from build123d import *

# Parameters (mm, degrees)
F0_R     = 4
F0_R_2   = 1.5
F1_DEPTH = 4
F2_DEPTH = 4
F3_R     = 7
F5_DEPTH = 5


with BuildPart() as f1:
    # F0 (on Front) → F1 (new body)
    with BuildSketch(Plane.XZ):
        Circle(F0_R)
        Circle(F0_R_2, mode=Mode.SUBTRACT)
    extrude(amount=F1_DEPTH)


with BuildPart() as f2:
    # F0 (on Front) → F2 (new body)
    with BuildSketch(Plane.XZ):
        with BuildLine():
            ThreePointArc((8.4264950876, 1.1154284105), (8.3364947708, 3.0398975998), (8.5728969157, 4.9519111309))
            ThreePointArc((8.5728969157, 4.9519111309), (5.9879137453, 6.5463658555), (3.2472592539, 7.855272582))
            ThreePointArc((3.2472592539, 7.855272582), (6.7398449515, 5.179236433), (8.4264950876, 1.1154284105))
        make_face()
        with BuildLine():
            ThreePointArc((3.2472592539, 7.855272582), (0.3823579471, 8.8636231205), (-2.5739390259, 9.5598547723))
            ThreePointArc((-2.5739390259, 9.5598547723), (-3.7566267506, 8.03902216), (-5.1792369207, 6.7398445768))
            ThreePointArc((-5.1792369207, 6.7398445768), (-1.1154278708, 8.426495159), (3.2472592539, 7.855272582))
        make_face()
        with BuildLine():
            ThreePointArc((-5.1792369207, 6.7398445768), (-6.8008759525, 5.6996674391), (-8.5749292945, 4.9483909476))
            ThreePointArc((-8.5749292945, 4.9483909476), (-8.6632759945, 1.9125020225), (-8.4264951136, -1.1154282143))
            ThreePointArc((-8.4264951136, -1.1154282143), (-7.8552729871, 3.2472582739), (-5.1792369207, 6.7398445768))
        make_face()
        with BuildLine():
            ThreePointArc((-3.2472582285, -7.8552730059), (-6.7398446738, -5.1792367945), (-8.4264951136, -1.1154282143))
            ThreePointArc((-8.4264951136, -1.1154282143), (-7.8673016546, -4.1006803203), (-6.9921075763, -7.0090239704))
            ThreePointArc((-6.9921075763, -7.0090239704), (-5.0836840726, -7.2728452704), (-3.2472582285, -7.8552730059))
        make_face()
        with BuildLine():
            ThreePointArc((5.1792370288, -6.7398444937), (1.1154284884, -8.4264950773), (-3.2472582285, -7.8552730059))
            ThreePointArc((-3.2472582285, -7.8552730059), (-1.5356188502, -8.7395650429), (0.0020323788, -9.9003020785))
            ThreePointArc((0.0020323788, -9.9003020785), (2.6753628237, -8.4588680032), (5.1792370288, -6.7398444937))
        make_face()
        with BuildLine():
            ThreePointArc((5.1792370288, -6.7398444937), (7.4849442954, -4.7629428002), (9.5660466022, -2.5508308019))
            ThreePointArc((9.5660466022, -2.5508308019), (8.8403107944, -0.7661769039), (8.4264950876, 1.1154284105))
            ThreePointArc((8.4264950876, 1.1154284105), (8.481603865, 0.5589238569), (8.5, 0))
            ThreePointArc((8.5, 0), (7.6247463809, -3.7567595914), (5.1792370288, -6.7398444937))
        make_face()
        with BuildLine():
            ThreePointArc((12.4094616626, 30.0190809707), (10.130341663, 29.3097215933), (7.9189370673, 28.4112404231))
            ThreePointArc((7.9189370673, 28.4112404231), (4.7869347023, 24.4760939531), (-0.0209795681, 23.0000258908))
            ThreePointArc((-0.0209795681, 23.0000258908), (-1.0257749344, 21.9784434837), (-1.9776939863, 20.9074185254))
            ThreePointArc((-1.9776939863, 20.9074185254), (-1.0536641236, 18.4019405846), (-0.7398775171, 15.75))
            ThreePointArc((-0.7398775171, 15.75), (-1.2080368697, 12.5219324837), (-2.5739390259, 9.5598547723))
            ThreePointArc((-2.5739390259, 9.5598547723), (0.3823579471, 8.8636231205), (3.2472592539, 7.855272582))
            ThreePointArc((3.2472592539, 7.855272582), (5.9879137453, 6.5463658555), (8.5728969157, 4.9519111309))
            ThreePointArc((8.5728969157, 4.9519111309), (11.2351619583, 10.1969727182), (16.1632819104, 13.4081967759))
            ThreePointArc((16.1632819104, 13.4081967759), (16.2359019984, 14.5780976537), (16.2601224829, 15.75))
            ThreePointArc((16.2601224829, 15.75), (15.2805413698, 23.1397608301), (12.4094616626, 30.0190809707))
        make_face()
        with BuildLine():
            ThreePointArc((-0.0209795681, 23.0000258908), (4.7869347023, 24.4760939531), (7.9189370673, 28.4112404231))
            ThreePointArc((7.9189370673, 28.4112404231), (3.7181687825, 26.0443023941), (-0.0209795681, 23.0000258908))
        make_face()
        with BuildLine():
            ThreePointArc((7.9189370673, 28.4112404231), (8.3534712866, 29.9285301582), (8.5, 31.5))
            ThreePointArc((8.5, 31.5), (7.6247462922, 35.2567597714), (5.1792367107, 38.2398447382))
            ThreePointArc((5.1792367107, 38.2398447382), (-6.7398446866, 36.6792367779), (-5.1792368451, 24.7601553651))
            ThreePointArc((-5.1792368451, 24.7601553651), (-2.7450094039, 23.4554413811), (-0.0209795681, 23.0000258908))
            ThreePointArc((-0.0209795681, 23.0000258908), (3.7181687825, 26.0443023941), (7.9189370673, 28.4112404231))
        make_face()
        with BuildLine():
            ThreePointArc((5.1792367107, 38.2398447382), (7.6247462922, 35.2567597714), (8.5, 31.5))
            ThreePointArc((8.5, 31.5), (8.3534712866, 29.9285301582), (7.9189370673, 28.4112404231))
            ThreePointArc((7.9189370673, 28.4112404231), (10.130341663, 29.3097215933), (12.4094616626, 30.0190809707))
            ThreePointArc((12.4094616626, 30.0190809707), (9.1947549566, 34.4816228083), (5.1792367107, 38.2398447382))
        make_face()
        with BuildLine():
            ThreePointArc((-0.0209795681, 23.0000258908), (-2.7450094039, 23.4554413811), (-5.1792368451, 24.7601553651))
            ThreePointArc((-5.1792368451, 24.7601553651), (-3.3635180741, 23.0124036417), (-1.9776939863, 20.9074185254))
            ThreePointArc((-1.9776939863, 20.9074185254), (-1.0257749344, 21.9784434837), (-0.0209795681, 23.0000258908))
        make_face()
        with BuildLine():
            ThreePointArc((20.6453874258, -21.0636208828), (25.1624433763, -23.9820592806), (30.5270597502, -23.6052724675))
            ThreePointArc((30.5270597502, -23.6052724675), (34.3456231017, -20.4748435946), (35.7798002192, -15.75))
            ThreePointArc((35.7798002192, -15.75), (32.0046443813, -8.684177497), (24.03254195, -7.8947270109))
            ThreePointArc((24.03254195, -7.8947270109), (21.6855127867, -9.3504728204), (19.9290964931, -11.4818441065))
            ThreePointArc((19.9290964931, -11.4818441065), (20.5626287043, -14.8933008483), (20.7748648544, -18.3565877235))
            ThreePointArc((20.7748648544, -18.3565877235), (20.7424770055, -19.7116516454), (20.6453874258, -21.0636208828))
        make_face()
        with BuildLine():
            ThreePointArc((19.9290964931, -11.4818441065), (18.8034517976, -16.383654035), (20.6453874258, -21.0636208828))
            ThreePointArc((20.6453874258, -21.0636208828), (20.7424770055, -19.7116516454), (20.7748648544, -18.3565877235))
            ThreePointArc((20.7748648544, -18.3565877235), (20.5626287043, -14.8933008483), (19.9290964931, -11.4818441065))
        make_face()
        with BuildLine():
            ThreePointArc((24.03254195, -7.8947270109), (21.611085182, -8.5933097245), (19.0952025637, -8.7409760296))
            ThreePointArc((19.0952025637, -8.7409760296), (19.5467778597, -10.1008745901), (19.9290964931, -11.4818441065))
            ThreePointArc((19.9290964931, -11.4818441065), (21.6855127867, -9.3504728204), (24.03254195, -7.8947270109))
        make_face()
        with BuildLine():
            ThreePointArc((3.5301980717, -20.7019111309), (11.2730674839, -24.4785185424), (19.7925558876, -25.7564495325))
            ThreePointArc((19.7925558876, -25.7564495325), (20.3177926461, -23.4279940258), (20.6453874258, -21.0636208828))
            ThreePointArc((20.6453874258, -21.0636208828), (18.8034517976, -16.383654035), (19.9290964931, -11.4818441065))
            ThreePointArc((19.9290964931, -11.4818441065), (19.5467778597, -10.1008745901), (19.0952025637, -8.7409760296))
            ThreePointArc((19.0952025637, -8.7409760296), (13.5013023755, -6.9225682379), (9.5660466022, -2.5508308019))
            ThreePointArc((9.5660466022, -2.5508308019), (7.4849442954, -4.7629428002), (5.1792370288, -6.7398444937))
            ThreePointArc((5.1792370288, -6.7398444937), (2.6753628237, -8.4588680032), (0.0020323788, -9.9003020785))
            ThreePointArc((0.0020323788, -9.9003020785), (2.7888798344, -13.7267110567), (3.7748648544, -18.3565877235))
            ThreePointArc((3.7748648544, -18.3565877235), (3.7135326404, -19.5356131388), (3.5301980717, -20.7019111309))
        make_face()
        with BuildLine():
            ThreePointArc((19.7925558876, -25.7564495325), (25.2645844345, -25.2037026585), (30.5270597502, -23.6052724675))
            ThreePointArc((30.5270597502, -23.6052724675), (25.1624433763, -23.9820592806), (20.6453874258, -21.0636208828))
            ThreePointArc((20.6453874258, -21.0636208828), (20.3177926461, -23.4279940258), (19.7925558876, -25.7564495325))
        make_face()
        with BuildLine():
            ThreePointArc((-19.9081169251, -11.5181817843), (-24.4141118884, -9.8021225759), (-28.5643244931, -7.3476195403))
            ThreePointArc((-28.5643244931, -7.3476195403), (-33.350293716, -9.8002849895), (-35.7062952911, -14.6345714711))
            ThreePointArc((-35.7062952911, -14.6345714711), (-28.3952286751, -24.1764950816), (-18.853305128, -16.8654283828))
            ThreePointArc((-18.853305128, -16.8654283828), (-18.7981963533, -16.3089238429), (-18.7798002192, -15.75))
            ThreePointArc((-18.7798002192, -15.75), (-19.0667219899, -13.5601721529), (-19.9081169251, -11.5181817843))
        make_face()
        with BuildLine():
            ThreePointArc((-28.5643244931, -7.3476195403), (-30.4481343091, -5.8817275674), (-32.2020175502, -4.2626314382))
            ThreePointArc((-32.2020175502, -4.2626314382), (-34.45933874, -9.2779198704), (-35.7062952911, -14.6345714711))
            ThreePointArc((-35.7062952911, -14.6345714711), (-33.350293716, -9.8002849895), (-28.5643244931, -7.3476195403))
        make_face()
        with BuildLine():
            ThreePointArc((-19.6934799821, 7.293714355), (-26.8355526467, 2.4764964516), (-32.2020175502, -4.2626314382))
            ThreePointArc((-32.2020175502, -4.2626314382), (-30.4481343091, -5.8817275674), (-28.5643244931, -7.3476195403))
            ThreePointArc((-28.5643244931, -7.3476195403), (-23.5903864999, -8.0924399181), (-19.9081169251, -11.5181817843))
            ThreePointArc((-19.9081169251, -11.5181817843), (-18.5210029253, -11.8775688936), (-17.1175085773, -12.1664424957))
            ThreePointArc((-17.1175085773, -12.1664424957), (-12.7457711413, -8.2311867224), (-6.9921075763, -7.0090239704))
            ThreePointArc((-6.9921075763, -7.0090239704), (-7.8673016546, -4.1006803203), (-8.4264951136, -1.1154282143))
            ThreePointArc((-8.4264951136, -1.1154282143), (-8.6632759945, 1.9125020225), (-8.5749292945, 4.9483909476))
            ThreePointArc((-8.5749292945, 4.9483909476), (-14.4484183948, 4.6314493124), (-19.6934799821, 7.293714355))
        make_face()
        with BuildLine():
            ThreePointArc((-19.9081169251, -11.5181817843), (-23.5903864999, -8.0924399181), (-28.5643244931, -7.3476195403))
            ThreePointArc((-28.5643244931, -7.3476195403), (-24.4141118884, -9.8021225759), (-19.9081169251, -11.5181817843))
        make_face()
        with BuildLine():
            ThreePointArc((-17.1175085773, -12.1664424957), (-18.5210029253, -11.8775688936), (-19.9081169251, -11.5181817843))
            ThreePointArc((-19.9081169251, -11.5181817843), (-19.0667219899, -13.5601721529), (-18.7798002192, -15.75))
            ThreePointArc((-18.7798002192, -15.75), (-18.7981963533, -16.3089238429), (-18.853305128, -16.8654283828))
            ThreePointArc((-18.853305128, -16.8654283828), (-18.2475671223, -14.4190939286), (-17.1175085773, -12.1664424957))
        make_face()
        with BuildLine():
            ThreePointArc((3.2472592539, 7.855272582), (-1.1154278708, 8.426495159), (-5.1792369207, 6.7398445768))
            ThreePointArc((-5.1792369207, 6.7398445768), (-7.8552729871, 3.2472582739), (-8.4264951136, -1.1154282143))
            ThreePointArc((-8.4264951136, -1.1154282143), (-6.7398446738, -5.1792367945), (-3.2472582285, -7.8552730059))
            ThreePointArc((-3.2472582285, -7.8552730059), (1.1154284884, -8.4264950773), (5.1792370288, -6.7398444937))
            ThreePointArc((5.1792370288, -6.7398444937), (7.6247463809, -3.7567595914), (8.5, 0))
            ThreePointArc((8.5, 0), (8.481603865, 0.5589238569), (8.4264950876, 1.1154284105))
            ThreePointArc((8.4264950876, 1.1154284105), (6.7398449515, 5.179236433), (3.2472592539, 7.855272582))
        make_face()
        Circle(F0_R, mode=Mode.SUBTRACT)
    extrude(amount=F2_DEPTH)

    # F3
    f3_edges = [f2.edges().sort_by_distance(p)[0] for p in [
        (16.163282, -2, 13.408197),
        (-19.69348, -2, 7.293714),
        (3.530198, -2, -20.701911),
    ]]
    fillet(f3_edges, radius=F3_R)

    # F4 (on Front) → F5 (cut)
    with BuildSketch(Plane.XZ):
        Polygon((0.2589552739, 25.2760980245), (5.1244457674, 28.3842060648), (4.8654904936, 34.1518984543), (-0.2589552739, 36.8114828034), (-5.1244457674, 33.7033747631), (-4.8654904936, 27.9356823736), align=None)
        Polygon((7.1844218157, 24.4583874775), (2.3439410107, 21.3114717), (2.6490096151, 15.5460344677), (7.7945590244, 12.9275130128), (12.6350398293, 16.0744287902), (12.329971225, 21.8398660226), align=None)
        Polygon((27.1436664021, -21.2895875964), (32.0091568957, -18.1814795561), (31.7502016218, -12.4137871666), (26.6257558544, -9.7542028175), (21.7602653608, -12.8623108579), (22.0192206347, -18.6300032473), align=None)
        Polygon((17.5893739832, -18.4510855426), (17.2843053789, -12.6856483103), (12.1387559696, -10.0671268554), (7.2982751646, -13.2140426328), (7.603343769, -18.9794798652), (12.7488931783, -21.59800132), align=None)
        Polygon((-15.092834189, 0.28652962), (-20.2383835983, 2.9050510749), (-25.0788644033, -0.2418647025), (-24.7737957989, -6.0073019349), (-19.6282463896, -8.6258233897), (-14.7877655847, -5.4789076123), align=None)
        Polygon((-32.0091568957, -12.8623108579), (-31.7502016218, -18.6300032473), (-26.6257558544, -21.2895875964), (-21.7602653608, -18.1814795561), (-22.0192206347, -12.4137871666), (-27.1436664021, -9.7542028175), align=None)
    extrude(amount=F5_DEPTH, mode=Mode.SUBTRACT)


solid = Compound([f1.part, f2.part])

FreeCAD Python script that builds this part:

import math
import FreeCAD as App
import Part
import Sketcher

V = App.Vector


def edges_at(feature, points):
    """Names of the edges that pass closest to the given points."""
    edges = feature.Shape.Edges
    near = lambda p: min(range(len(edges)), key=lambda i: edges[i].distToShape(Part.Vertex(*p))[0])
    return sorted({f"Edge{near(p) + 1}" for p in points})


def add_polygon(sketch, points):
    """Adds a closed chain of lines whose ends are joined by coincident constraints."""
    first, n = sketch.GeometryCount, len(points)
    for a, b in zip(points, points[1:] + points[:1]):
        sketch.addGeometry(Part.LineSegment(App.Vector(*a, 0), App.Vector(*b, 0)), False)
    for i in range(n):
        sketch.addConstraint(Sketcher.Constraint("Coincident", first + i, 2, first + (i + 1) % n, 1))

doc = App.newDocument("Part")
body = doc.addObject("PartDesign::Body", "Body")

sketch1 = body.newObject("Sketcher::SketchObject", "Sketch")
sketch1.AttachmentSupport = (doc.getObject("XZ_Plane"), [""])
sketch1.MapMode = "FlatFace"
sketch1.addGeometry(Part.Circle(V(0, 0, 0), V(0, 0, 1), 4), False)
sketch1.addGeometry(Part.Circle(V(0, 0, 0), V(0, 0, 1), 1.5), False)
sketch1.addConstraint(Sketcher.Constraint("Coincident", 0, 3, -1, 1))
sketch1.addConstraint(Sketcher.Constraint("Coincident", 1, 3, -1, 1))
sketch1.addConstraint(Sketcher.Constraint("Diameter", 0, 8.0))
sketch1.addConstraint(Sketcher.Constraint("Diameter", 1, 3.0))
pad1 = body.newObject("PartDesign::Pad", "Pad")
pad1.Profile = sketch1
pad1.Length = 4
body2 = doc.addObject("PartDesign::Body", "Body001")

sketch2 = body2.newObject("Sketcher::SketchObject", "Sketch001")
sketch2.AttachmentSupport = (doc.getObject("XZ_Plane001"), [""])
sketch2.MapMode = "FlatFace"
sketch2.addGeometry(Part.ArcOfCircle(Part.Circle(V(19.7, 2.6, 0), V(0, 0, 1), 11.4), math.radians(168.09), math.radians(187.54)), False)
sketch2.addGeometry(Part.ArcOfCircle(Part.Circle(V(19.7, 2.6, 0), V(0, 0, 1), 11.4), math.radians(108), math.radians(168)), False)
sketch2.addGeometry(Part.ArcOfCircle(Part.Circle(V(-12.1, 15.7, 0), V(0, 0, 1), 28.4), math.radians(-4.74), math.radians(0)), False)
sketch2.addGeometry(Part.ArcOfCircle(Part.Circle(V(-12.1, 15.8, 0), V(0, 0, 1), 28.4), math.radians(0), math.radians(30)), False)
sketch2.addGeometry(Part.ArcOfCircle(Part.Circle(V(-12.1, 15.8, 0), V(0, 0, 1), 28.4), math.radians(30), math.radians(52)), False)
sketch2.addGeometry(Part.ArcOfCircle(Part.Circle(V(0, 31.5, 0), V(0, 0, 1), 8.5), math.radians(52), math.radians(232)), False)
sketch2.addGeometry(Part.ArcOfCircle(Part.Circle(V(-12.1, 15.8, 0), V(0, 0, 1), 11.4), math.radians(27), math.radians(52)), False)
sketch2.addGeometry(Part.ArcOfCircle(Part.Circle(V(-12.1, 15.8, 0), V(0, 0, 1), 11.4), math.radians(0), math.radians(27)), False)
sketch2.addGeometry(Part.ArcOfCircle(Part.Circle(V(-12.1, 15.8, 0), V(0, 0, 1), 11.4), math.radians(-33), math.radians(0)), False)
sketch2.addGeometry(Part.ArcOfCircle(Part.Circle(V(-12.1, 15.8, 0), V(0, 0, 1), 11.4), math.radians(-52.46), math.radians(-33.01)), False)
sketch2.addGeometry(Part.ArcOfCircle(Part.Circle(V(-12.1, 15.7, 0), V(0, 0, 1), 11.4), math.radians(-71.91), math.radians(-52.46)), False)
sketch2.addGeometry(Part.ArcOfCircle(Part.Circle(V(-12.1, 15.8, 0), V(0, 0, 1), 11.4), math.radians(-132), math.radians(-72)), False)
sketch2.addGeometry(Part.ArcOfCircle(Part.Circle(V(-7.6, -18.4, 0), V(0, 0, 1), 28.4), math.radians(115), math.radians(150)), False)
sketch2.addGeometry(Part.ArcOfCircle(Part.Circle(V(-7.6, -18.4, 0), V(0, 0, 1), 28.4), math.radians(150), math.radians(172)), False)
sketch2.addGeometry(Part.ArcOfCircle(Part.Circle(V(-27.3, -15.8, 0), V(0, 0, 1), 8.5), math.radians(172), math.radians(352)), False)
sketch2.addGeometry(Part.ArcOfCircle(Part.Circle(V(-7.6, -18.4, 0), V(0, 0, 1), 11.4), math.radians(147), math.radians(172)), False)
sketch2.addGeometry(Part.ArcOfCircle(Part.Circle(V(-7.6, -18.4, 0), V(0, 0, 1), 11.4), math.radians(87), math.radians(147)), False)
sketch2.addGeometry(Part.ArcOfCircle(Part.Circle(V(-7.6, -18.4, 0), V(0, 0, 1), 11.4), math.radians(67.54), math.radians(86.99)), False)
sketch2.addGeometry(Part.ArcOfCircle(Part.Circle(V(-7.6, -18.4, 0), V(0, 0, 1), 11.4), math.radians(48.09), math.radians(67.54)), False)
sketch2.addGeometry(Part.ArcOfCircle(Part.Circle(V(-7.6, -18.4, 0), V(0, 0, 1), 11.4), math.radians(0), math.radians(48)), False)
sketch2.addGeometry(Part.ArcOfCircle(Part.Circle(V(-7.6, -18.4, 0), V(0, 0, 1), 11.4), math.radians(-11.91), math.radians(0)), False)
sketch2.addGeometry(Part.ArcOfCircle(Part.Circle(V(19.7, 2.6, 0), V(0, 0, 1), 28.4), math.radians(-125), math.radians(-68)), False)
sketch2.addGeometry(Part.ArcOfCircle(Part.Circle(V(27.3, -15.8, 0), V(0, 0, 1), 8.5), math.radians(-68), math.radians(0)), False)
sketch2.addGeometry(Part.ArcOfCircle(Part.Circle(V(27.3, -15.8, 0), V(0, 0, 1), 8.5), math.radians(0), math.radians(112)), False)
sketch2.addGeometry(Part.ArcOfCircle(Part.Circle(V(19.7, 2.6, 0), V(0, 0, 1), 11.4), math.radians(-93), math.radians(-68)), False)
sketch2.addGeometry(Part.ArcOfCircle(Part.Circle(V(19.7, 2.6, 0), V(0, 0, 1), 11.4), math.radians(-153), math.radians(-93)), False)
sketch2.addGeometry(Part.ArcOfCircle(Part.Circle(V(19.7, 2.6, 0), V(0, 0, 1), 11.4), math.radians(-172.46), math.radians(-153.01)), False)
sketch2.addGeometry(Part.Circle(V(0, 0, 0), V(0, 0, 1), 4), False)
sketch2.addConstraint(Sketcher.Constraint("Tangent", 0, 1, 1, 2))
sketch2.addConstraint(Sketcher.Constraint("Coincident", 1, 1, 2, 1))
sketch2.addConstraint(Sketcher.Constraint("Tangent", 2, 2, 3, 1))
sketch2.addConstraint(Sketcher.Constraint("Tangent", 3, 2, 4, 1))
sketch2.addConstraint(Sketcher.Constraint("Tangent", 4, 2, 5, 1))
sketch2.addConstraint(Sketcher.Constraint("Tangent", 5, 2, 6, 2))
sketch2.addConstraint(Sketcher.Constraint("Tangent", 6, 1, 7, 2))
sketch2.addConstraint(Sketcher.Constraint("Tangent", 7, 1, 8, 2))
sketch2.addConstraint(Sketcher.Constraint("Tangent", 8, 1, 9, 2))
sketch2.addConstraint(Sketcher.Constraint("Tangent", 9, 1, 10, 2))
sketch2.addConstraint(Sketcher.Constraint("Tangent", 10, 1, 11, 2))
sketch2.addConstraint(Sketcher.Constraint("Coincident", 11, 1, 12, 1))
sketch2.addConstraint(Sketcher.Constraint("Tangent", 12, 2, 13, 1))
sketch2.addConstraint(Sketcher.Constraint("Tangent", 13, 2, 14, 1))
sketch2.addConstraint(Sketcher.Constraint("Tangent", 14, 2, 15, 2))
sketch2.addConstraint(Sketcher.Constraint("Tangent", 15, 1, 16, 2))
sketch2.addConstraint(Sketcher.Constraint("Tangent", 16, 1, 17, 2))
sketch2.addConstraint(Sketcher.Constraint("Tangent", 17, 1, 18, 2))
sketch2.addConstraint(Sketcher.Constraint("Tangent", 18, 1, 19, 2))
sketch2.addConstraint(Sketcher.Constraint("Tangent", 19, 1, 20, 2))
sketch2.addConstraint(Sketcher.Constraint("Coincident", 20, 1, 21, 1))
sketch2.addConstraint(Sketcher.Constraint("Tangent", 21, 2, 22, 1))
sketch2.addConstraint(Sketcher.Constraint("Tangent", 22, 2, 23, 1))
sketch2.addConstraint(Sketcher.Constraint("Tangent", 23, 2, 24, 2))
sketch2.addConstraint(Sketcher.Constraint("Tangent", 24, 1, 25, 2))
sketch2.addConstraint(Sketcher.Constraint("Tangent", 25, 1, 26, 2))
sketch2.addConstraint(Sketcher.Constraint("Tangent", 26, 1, 0, 2))
sketch2.addConstraint(Sketcher.Constraint("Coincident", 27, 3, -1, 1))
sketch2.addConstraint(Sketcher.Constraint("Coincident", 4, 3, 2, 3))
sketch2.addConstraint(Sketcher.Constraint("Coincident", 6, 3, 2, 3))
sketch2.addConstraint(Sketcher.Constraint("Coincident", 8, 3, 2, 3))
sketch2.addConstraint(Sketcher.Constraint("Coincident", 10, 3, 2, 3))
sketch2.addConstraint(Sketcher.Constraint("Coincident", 15, 3, 12, 3))
sketch2.addConstraint(Sketcher.Constraint("Coincident", 17, 3, 12, 3))
sketch2.addConstraint(Sketcher.Constraint("Coincident", 19, 3, 12, 3))
sketch2.addConstraint(Sketcher.Constraint("Coincident", 21, 3, 0, 3))
sketch2.addConstraint(Sketcher.Constraint("Coincident", 24, 3, 0, 3))
sketch2.addConstraint(Sketcher.Constraint("Equal", 0, 1))
sketch2.addConstraint(Sketcher.Constraint("Equal", 1, 6))
sketch2.addConstraint(Sketcher.Constraint("Equal", 10, 11))
sketch2.addConstraint(Sketcher.Constraint("Equal", 4, 12))
sketch2.addConstraint(Sketcher.Constraint("Equal", 12, 13))
sketch2.addConstraint(Sketcher.Constraint("Equal", 5, 14))
sketch2.addConstraint(Sketcher.Constraint("Equal", 19, 20))
sketch2.addConstraint(Sketcher.Constraint("Equal", 13, 21))
sketch2.addConstraint(Sketcher.Constraint("Equal", 14, 22))
sketch2.addConstraint(Sketcher.Constraint("Equal", 22, 23))
sketch2.addConstraint(Sketcher.Constraint("Symmetric", 14, 3, 22, 3, -2))
sketch2.addConstraint(Sketcher.Constraint("PointOnObject", 5, 3, -2))
sketch2.addConstraint(Sketcher.Constraint("Horizontal", 11, 3, 2, 2))
sketch2.addConstraint(Sketcher.Constraint("Horizontal", 2, 2, 7, 1))
sketch2.addConstraint(Sketcher.Constraint("Horizontal", 20, 3, 19, 1))
sketch2.addConstraint(Sketcher.Constraint("Horizontal", 23, 3, 22, 2))
sketch2.addConstraint(Sketcher.Constraint("Vertical", 5, 2, 9, 1))
sketch2.addConstraint(Sketcher.Constraint("Diameter", 27, 8.0))
sketch2.addConstraint(Sketcher.Constraint("Radius", 5, 8.5))
sketch2.addConstraint(Sketcher.Constraint("DistanceY", -1, 1, 5, 3, 31.5))
sketch2.addConstraint(Sketcher.Constraint("DistanceY", 14, 3, 10, 3, 31.5))
sketch2.addConstraint(Sketcher.Constraint("DistanceY", -1, 1, 2, 3, 15.75))
sketch2.addConstraint(Sketcher.Constraint("Radius", 0, 11.363217))
sketch2.addConstraint(Sketcher.Constraint("DistanceX", 14, 3, -1, 1, 27.2798))
sketch2.addConstraint(Sketcher.Constraint("DistanceX", -1, 1, 20, 1, 3.530198))
sketch2.addConstraint(Sketcher.Constraint("DistanceX", 13, 3, 1, 3, 27.2798))
sketch2.addConstraint(Sketcher.Constraint("DistanceX", 2, 3, 6, 1, 10.125401))
sketch2.addConstraint(Sketcher.Constraint("DistanceX", 25, 1, 24, 3, 10.125401))
sketch2.addConstraint(Sketcher.Constraint("DistanceX", 26, 1, 0, 1, 0.146402))
sketch2.addConstraint(Sketcher.Constraint("DistanceY", -1, 1, 0, 1, 4.951911))
sketch2.addConstraint(Sketcher.Constraint("DistanceX", -1, 1, 3, 2, 12.409462))
sketch2.addConstraint(Sketcher.Constraint("DistanceX", 8, 1, -1, 1, 2.573939))
sketch2.addConstraint(Sketcher.Constraint("DistanceX", 10, 1, -1, 1, 8.574929))
sketch2.addConstraint(Sketcher.Constraint("DistanceY", 12, 2, -1, 1, 4.262631))
sketch2.addConstraint(Sketcher.Constraint("DistanceX", 15, 1, -1, 1, 17.117509))
sketch2.addConstraint(Sketcher.Constraint("DistanceX", 17, 1, -1, 1, 3.247258))
sketch2.addConstraint(Sketcher.Constraint("DistanceX", 16, 1, 17, 1, 3.744849))
sketch2.addConstraint(Sketcher.Constraint("DistanceX", 17, 1, 18, 1, 3.249291))
sketch2.addConstraint(Sketcher.Constraint("DistanceX", 24, 1, 23, 2, 4.937339))
pad2 = body2.newObject("PartDesign::Pad", "Pad001")
pad2.Profile = sketch2
pad2.Length = 4
doc.recompute()

fillet = body2.newObject("PartDesign::Fillet", "Fillet")
fillet.Base = (pad2, edges_at(pad2, [(16.163, -2, 13.408), (-19.693, -2, 7.294), (3.53, -2, -20.702)]))
fillet.Radius = 7

sketch3 = body2.newObject("Sketcher::SketchObject", "Sketch002")
sketch3.AttachmentSupport = (doc.getObject("XZ_Plane001"), [""])
sketch3.MapMode = "FlatFace"
add_polygon(sketch3, [(0, 25), (5, 28), (5, 34), (0, 37), (-5, 34), (-5, 28)])
add_polygon(sketch3, [(7, 24), (2, 21), (3, 16), (8, 13), (13, 16), (12, 22)])
add_polygon(sketch3, [(27, -21), (32, -18), (32, -12), (27, -10), (22, -13), (22, -19)])
add_polygon(sketch3, [(18, -18), (17, -13), (12, -10), (7, -13), (8, -19), (13, -22)])
add_polygon(sketch3, [(-15, 0), (-20, 3), (-25, 0), (-25, -6), (-20, -9), (-15, -5)])
add_polygon(sketch3, [(-32, -13), (-32, -19), (-27, -21), (-22, -18), (-22, -12), (-27, -10)])
sketch3.addConstraint(Sketcher.Constraint("Parallel", 0, 3))
sketch3.addConstraint(Sketcher.Constraint("Parallel", 1, 4))
sketch3.addConstraint(Sketcher.Constraint("Parallel", 2, 5))
sketch3.addConstraint(Sketcher.Constraint("Parallel", 6, 9))
sketch3.addConstraint(Sketcher.Constraint("Parallel", 7, 10))
sketch3.addConstraint(Sketcher.Constraint("Parallel", 8, 11))
sketch3.addConstraint(Sketcher.Constraint("Parallel", 3, 12))
sketch3.addConstraint(Sketcher.Constraint("Parallel", 4, 13))
sketch3.addConstraint(Sketcher.Constraint("Parallel", 5, 14))
sketch3.addConstraint(Sketcher.Constraint("Parallel", 12, 15))
sketch3.addConstraint(Sketcher.Constraint("Parallel", 13, 16))
sketch3.addConstraint(Sketcher.Constraint("Parallel", 14, 17))
sketch3.addConstraint(Sketcher.Constraint("Parallel", 10, 18))
sketch3.addConstraint(Sketcher.Constraint("Parallel", 11, 19))
sketch3.addConstraint(Sketcher.Constraint("Parallel", 9, 20))
sketch3.addConstraint(Sketcher.Constraint("Parallel", 18, 21))
sketch3.addConstraint(Sketcher.Constraint("Parallel", 19, 22))
sketch3.addConstraint(Sketcher.Constraint("Parallel", 20, 23))
sketch3.addConstraint(Sketcher.Constraint("Parallel", 22, 24))
sketch3.addConstraint(Sketcher.Constraint("Parallel", 23, 25))
sketch3.addConstraint(Sketcher.Constraint("Parallel", 21, 26))
sketch3.addConstraint(Sketcher.Constraint("Parallel", 24, 27))
sketch3.addConstraint(Sketcher.Constraint("Parallel", 25, 28))
sketch3.addConstraint(Sketcher.Constraint("Parallel", 26, 29))
sketch3.addConstraint(Sketcher.Constraint("Parallel", 16, 30))
sketch3.addConstraint(Sketcher.Constraint("Parallel", 17, 31))
sketch3.addConstraint(Sketcher.Constraint("Parallel", 15, 32))
sketch3.addConstraint(Sketcher.Constraint("Parallel", 30, 33))
sketch3.addConstraint(Sketcher.Constraint("Parallel", 31, 34))
sketch3.addConstraint(Sketcher.Constraint("Parallel", 32, 35))
sketch3.addConstraint(Sketcher.Constraint("Horizontal", 16, 2, 30, 2))
sketch3.addConstraint(Sketcher.Constraint("Horizontal", 17, 2, 31, 2))
sketch3.addConstraint(Sketcher.Constraint("Horizontal", 12, 2, 32, 2))
sketch3.addConstraint(Sketcher.Constraint("Horizontal", 13, 2, 33, 2))
sketch3.addConstraint(Sketcher.Constraint("Horizontal", 14, 2, 34, 2))
sketch3.addConstraint(Sketcher.Constraint("Equal", 0, 1))
sketch3.addConstraint(Sketcher.Constraint("Equal", 1, 2))
sketch3.addConstraint(Sketcher.Constraint("Equal", 2, 3))
sketch3.addConstraint(Sketcher.Constraint("Equal", 5, 6))
sketch3.addConstraint(Sketcher.Constraint("Equal", 6, 7))
sketch3.addConstraint(Sketcher.Constraint("Equal", 7, 8))
sketch3.addConstraint(Sketcher.Constraint("Equal", 8, 9))
sketch3.addConstraint(Sketcher.Constraint("Equal", 11, 12))
sketch3.addConstraint(Sketcher.Constraint("Equal", 12, 13))
sketch3.addConstraint(Sketcher.Constraint("Equal", 13, 14))
sketch3.addConstraint(Sketcher.Constraint("Equal", 14, 15))
sketch3.addConstraint(Sketcher.Constraint("Equal", 17, 18))
sketch3.addConstraint(Sketcher.Constraint("Equal", 18, 19))
sketch3.addConstraint(Sketcher.Constraint("Equal", 19, 20))
sketch3.addConstraint(Sketcher.Constraint("Equal", 20, 21))
sketch3.addConstraint(Sketcher.Constraint("Equal", 23, 24))
sketch3.addConstraint(Sketcher.Constraint("Equal", 24, 25))
sketch3.addConstraint(Sketcher.Constraint("Equal", 25, 26))
sketch3.addConstraint(Sketcher.Constraint("Equal", 26, 27))
sketch3.addConstraint(Sketcher.Constraint("DistanceY", 22, 2, -1, 1, 21.598001))
sketch3.addConstraint(Sketcher.Constraint("DistanceX", 19, 2, 14, 2, 14.487))
sketch3.addConstraint(Sketcher.Constraint("DistanceY", 22, 2, 16, 2, 2.967998))
sketch3.addConstraint(Sketcher.Constraint("DistanceY", -1, 1, 1, 2, 34.151898))
sketch3.addConstraint(Sketcher.Constraint("DistanceY", -1, 1, 5, 2, 25.276098))
sketch3.addConstraint(Sketcher.Constraint("DistanceX", -1, 1, 13, 2, 31.750202))
sketch3.addConstraint(Sketcher.Constraint("DistanceY", 26, 2, -1, 1, 6.007302))
sketch3.addConstraint(Sketcher.Constraint("DistanceX", 30, 2, -1, 1, 31.750202))
sketch3.addConstraint(Sketcher.Constraint("DistanceX", 2, 2, 0, 2, 5.383401))
sketch3.addConstraint(Sketcher.Constraint("DistanceX", 4, 2, 7, 2, 7.5145))
sketch3.addConstraint(Sketcher.Constraint("DistanceX", 6, 2, 9, 2, 10.291099))
sketch3.addConstraint(Sketcher.Constraint("DistanceY", 13, 2, 8, 2, 25.3413))
sketch3.addConstraint(Sketcher.Constraint("DistanceY", 25, 2, 7, 2, 15.787899))
sketch3.addConstraint(Sketcher.Constraint("DistanceX", 32, 2, 28, 2, 6.9725))
sketch3.addConstraint(Sketcher.Constraint("DistanceX", -1, 1, 1, 2, 4.86549))
sketch3.addConstraint(Sketcher.Constraint("DistanceX", 4, 2, -1, 1, 4.86549))
sketch3.addConstraint(Sketcher.Constraint("DistanceX", -1, 1, 6, 2, 2.343941))
sketch3.addConstraint(Sketcher.Constraint("DistanceY", -1, 1, 6, 2, 21.311472))
pocket1 = body2.newObject("PartDesign::Pocket", "Pocket")
pocket1.Profile = sketch3
pocket1.Length = 5
pocket1.Reversed = True

doc.recompute()
